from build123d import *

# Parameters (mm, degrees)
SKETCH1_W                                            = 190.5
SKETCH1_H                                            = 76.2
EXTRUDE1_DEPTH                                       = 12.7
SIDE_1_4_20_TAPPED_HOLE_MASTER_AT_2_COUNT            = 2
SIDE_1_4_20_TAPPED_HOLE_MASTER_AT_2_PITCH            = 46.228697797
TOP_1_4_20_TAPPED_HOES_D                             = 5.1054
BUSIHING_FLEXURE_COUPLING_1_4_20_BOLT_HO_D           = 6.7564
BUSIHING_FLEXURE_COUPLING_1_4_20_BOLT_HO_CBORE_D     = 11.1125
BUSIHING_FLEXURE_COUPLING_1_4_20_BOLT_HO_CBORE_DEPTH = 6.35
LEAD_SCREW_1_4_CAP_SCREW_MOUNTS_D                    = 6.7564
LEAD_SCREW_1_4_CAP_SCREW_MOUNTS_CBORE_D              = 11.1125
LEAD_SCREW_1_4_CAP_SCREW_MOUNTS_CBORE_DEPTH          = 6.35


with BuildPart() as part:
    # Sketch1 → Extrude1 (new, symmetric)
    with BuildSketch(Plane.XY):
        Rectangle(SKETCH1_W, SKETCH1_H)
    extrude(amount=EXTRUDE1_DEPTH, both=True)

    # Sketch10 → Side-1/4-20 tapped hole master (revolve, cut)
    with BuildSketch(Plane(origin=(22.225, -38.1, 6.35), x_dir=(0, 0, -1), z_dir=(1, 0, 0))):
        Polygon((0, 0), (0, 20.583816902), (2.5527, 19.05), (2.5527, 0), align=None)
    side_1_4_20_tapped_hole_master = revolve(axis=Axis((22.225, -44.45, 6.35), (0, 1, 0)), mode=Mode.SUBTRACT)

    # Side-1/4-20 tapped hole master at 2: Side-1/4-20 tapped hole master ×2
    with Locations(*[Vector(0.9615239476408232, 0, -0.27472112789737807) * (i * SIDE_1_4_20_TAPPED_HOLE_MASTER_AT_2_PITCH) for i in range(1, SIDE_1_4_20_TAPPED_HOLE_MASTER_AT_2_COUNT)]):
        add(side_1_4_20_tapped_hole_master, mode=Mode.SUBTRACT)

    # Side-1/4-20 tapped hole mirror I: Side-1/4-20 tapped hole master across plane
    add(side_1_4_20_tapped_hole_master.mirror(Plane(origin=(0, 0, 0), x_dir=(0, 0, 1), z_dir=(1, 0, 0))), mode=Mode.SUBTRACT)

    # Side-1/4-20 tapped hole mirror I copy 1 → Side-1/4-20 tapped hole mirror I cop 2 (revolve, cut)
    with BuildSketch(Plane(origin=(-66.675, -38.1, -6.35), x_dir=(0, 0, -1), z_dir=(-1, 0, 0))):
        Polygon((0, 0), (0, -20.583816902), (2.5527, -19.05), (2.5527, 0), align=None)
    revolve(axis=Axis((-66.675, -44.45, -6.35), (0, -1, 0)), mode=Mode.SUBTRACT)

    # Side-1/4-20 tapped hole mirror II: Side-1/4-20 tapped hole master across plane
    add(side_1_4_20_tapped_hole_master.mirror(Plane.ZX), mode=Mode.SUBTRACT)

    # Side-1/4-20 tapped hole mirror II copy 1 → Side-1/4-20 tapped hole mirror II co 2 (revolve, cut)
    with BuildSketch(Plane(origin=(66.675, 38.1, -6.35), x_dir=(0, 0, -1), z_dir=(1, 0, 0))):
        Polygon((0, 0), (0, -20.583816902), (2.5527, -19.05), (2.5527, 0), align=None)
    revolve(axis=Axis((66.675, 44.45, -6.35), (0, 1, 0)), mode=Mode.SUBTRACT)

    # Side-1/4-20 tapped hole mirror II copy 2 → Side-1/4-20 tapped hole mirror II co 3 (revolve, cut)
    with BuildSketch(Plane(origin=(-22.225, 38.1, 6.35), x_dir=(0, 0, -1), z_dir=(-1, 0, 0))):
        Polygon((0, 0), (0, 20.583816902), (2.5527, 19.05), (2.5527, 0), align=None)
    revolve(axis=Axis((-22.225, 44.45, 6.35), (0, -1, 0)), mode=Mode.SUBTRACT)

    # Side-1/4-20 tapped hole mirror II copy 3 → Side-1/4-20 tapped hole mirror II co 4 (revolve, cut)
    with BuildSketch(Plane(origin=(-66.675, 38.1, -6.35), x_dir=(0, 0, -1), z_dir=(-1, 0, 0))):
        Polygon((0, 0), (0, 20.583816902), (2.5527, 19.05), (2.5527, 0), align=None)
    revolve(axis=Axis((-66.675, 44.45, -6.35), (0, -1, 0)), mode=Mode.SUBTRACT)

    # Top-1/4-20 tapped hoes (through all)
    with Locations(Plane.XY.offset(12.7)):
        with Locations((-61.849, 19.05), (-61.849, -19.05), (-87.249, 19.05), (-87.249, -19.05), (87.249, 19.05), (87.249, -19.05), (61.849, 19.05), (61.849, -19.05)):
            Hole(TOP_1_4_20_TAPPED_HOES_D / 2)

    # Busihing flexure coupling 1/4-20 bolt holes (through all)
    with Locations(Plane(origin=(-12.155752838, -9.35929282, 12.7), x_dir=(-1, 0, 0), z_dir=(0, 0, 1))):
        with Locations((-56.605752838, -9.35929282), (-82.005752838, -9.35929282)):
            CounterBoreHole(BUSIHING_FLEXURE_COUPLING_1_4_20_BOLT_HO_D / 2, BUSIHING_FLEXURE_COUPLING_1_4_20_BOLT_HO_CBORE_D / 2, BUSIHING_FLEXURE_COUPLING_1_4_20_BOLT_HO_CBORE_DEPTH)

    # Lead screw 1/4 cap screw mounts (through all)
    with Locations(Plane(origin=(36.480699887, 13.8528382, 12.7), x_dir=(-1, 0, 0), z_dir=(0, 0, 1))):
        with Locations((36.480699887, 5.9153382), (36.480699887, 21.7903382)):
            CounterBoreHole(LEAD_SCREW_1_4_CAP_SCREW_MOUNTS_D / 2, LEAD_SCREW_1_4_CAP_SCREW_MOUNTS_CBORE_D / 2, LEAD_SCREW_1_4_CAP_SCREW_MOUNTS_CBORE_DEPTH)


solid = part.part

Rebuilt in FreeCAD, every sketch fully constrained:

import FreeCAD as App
import Part
import Sketcher
Q = App.Units.Quantity

doc = App.newDocument("Part")
body = doc.addObject("PartDesign::Body", "Body")

sketch1 = body.newObject("Sketcher::SketchObject", "Sketch")
sketch1.AttachmentSupport = (doc.getObject("XY_Plane"), [""])
sketch1.MapMode = "FlatFace"
sketch1.addGeometry([
    Part.LineSegment(App.Vector(-95.25, 38.1, 0), App.Vector(-95.25, -38.1, 0)),
    Part.LineSegment(App.Vector(-95.25, -38.1, 0), App.Vector(95.25, -38.1, 0)),
    Part.LineSegment(App.Vector(95.25, -38.1, 0), App.Vector(95.25, 38.1, 0)),
    Part.LineSegment(App.Vector(95.25, 38.1, 0), App.Vector(-95.25, 38.1, 0)),
], False)
sketch1.addConstraint([
    Sketcher.Constraint("Coincident", 0, 2, 1, 1),
    Sketcher.Constraint("Coincident", 1, 2, 2, 1),
    Sketcher.Constraint("Coincident", 2, 2, 3, 1),
    Sketcher.Constraint("Coincident", 3, 2, 0, 1),
    Sketcher.Constraint("Vertical", 0),
    Sketcher.Constraint("Horizontal", 1),
    Sketcher.Constraint("Vertical", 2),
    Sketcher.Constraint("Horizontal", 3),
    Sketcher.Constraint("Symmetric", 0, 2, 2, 2, -1, 1),
    Sketcher.Constraint("DistanceY", 0, 2, 0, 1, Q("3 in")),
    Sketcher.Constraint("DistanceX", 1, 1, 1, 2, Q("7.5 in")),
])
pad1 = body.newObject("PartDesign::Pad", "Pad")
pad1.Profile = sketch1
pad1.Length = Q("1 in")
pad1.Midplane = True

sketch2 = body.newObject("Sketcher::SketchObject", "Sketch001")
sketch2.AttachmentSupport = (doc.getObject("YZ_Plane"), [""])
sketch2.MapMode = "FlatFace"
sketch2.AttachmentOffset = App.Placement(App.Vector(0, 0, 0.875 * 25.4), App.Rotation())
sketch2.addGeometry([
    Part.LineSegment(App.Vector(-17.516183, 6.35, 0), App.Vector(-38.1, 6.35, 0)),
    Part.LineSegment(App.Vector(-38.1, 6.35, 0), App.Vector(-38.1, 3.7973, 0)),
    Part.LineSegment(App.Vector(-38.1, 3.7973, 0), App.Vector(-19.05, 3.7973, 0)),
    Part.LineSegment(App.Vector(-19.05, 3.7973, 0), App.Vector(-17.516183, 6.35, 0)),
], False)
sketch2.addGeometry(Part.LineSegment(App.Vector(-38.1, 6.35, 0), App.Vector(-17.516183, 6.35, 0)), True)
sketch2.addConstraint([
    Sketcher.Constraint("Coincident", 0, 2, 1, 1),
    Sketcher.Constraint("Coincident", 1, 2, 2, 1),
    Sketcher.Constraint("Coincident", 2, 2, 3, 1),
    Sketcher.Constraint("Coincident", 3, 2, 0, 1),
    Sketcher.Constraint("Horizontal", 0),
    Sketcher.Constraint("Vertical", 1),
    Sketcher.Constraint("Horizontal", 2),
    Sketcher.Constraint("Horizontal", 4),
    Sketcher.Constraint("Coincident", 4, 1, 0, 2),
    Sketcher.Constraint("Equal", 0, 4),
    Sketcher.Constraint("Angle", 3, Q("59 deg")),
    Sketcher.Constraint("DistanceX", 2, 1, 2, 2, Q("0.75 in")),
    Sketcher.Constraint("DistanceX", 0, 2, -1, 1, Q("1.5 in")),
    Sketcher.Constraint("DistanceY", -1, 1, 0, 2, Q("0.25 in")),
    Sketcher.Constraint("DistanceY", 1, 2, 1, 1, Q("0.1005 in")),
])
groove = body.newObject("PartDesign::Groove", "Groove")
groove.Profile = sketch2
groove.ReferenceAxis = (sketch2, ["Axis0"])
groove.Angle = 360
doc.recompute()

datumline = body.newObject("PartDesign::Line", "DatumLine")
datumline.Placement = App.Placement(App.Vector(0, 0, 0), App.Rotation(App.Vector(0, 0, 1), App.Vector(0.961523948, 0, -0.274721128)))
linearpattern = body.newObject("PartDesign::LinearPattern", "LinearPattern")
linearpattern.Originals = [groove]
linearpattern.Direction = (datumline, [""])
linearpattern.Mode = "offset"
linearpattern.Offset = 46.228698
linearpattern.Occurrences = 2
body.Tip = linearpattern
doc.recompute()

mirrored = body.newObject("PartDesign::Mirrored", "Mirrored")
mirrored.Originals = [groove]
mirrored.MirrorPlane = (doc.getObject("YZ_Plane"), [""])
body.Tip = mirrored

sketch3 = body.newObject("Sketcher::SketchObject", "Sketch002")
sketch3.AttachmentSupport = (doc.getObject("YZ_Plane"), [""])
sketch3.MapMode = "FlatFace"
sketch3.AttachmentOffset = App.Placement(App.Vector(0, 0, -2.625 * 25.4), App.Rotation())
sketch3.addGeometry([
    Part.LineSegment(App.Vector(-38.1, -6.35, 0), App.Vector(-17.516183, -6.35, 0)),
    Part.LineSegment(App.Vector(-17.516183, -6.35, 0), App.Vector(-19.05, -8.9027, 0)),
    Part.LineSegment(App.Vector(-19.05, -8.9027, 0), App.Vector(-38.1, -8.9027, 0)),
    Part.LineSegment(App.Vector(-38.1, -8.9027, 0), App.Vector(-38.1, -6.35, 0)),
], False)
sketch3.addGeometry(Part.LineSegment(App.Vector(-17.516183, -6.35, 0), App.Vector(-38.1, -6.35, 0)), True)
sketch3.addConstraint([
    Sketcher.Constraint("Coincident", 0, 2, 1, 1),
    Sketcher.Constraint("Coincident", 1, 2, 2, 1),
    Sketcher.Constraint("Coincident", 2, 2, 3, 1),
    Sketcher.Constraint("Coincident", 3, 2, 0, 1),
    Sketcher.Constraint("Horizontal", 0),
    Sketcher.Constraint("Horizontal", 2),
    Sketcher.Constraint("Vertical", 3),
    Sketcher.Constraint("Horizontal", 4),
    Sketcher.Constraint("Coincident", 4, 1, 0, 2),
    Sketcher.Constraint("Vertical", 2, 2, 4, 2),
    Sketcher.Constraint("Angle", 1, Q("-121 deg")),
    Sketcher.Constraint("DistanceX", 2, 2, 2, 1, Q("0.75 in")),
    Sketcher.Constraint("DistanceX", 2, 2, -1, 1, Q("1.5 in")),
    Sketcher.Constraint("DistanceY", 0, 2, -1, 1, Q("0.25 in")),
    Sketcher.Constraint("DistanceY", 3, 1, 3, 2, Q("0.1005 in")),
])
groove2 = body.newObject("PartDesign::Groove", "Groove001")
groove2.Profile = sketch3
groove2.ReferenceAxis = (sketch3, ["Axis0"])
groove2.Angle = 360
doc.recompute()

mirrored2 = body.newObject("PartDesign::Mirrored", "Mirrored001")
mirrored2.Originals = [groove]
mirrored2.MirrorPlane = (doc.getObject("XZ_Plane"), [""])
body.Tip = mirrored2

sketch4 = body.newObject("Sketcher::SketchObject", "Sketch003")
sketch4.AttachmentSupport = (doc.getObject("YZ_Plane"), [""])
sketch4.MapMode = "FlatFace"
sketch4.AttachmentOffset = App.Placement(App.Vector(0, 0, 2.625 * 25.4), App.Rotation())
sketch4.addGeometry([
    Part.LineSegment(App.Vector(38.1, -6.35, 0), App.Vector(17.516183, -6.35, 0)),
    Part.LineSegment(App.Vector(17.516183, -6.35, 0), App.Vector(19.05, -8.9027, 0)),
    Part.LineSegment(App.Vector(19.05, -8.9027, 0), App.Vector(38.1, -8.9027, 0)),
    Part.LineSegment(App.Vector(38.1, -8.9027, 0), App.Vector(38.1, -6.35, 0)),
], False)
sketch4.addGeometry(Part.LineSegment(App.Vector(17.516183, -6.35, 0), App.Vector(38.1, -6.35, 0)), True)
sketch4.addConstraint([
    Sketcher.Constraint("Coincident", 0, 2, 1, 1),
    Sketcher.Constraint("Coincident", 1, 2, 2, 1),
    Sketcher.Constraint("Coincident", 2, 2, 3, 1),
    Sketcher.Constraint("Coincident", 3, 2, 0, 1),
    Sketcher.Constraint("Horizontal", 0),
    Sketcher.Constraint("Horizontal", 2),
    Sketcher.Constraint("Vertical", 3),
    Sketcher.Constraint("Horizontal", 4),
    Sketcher.Constraint("Coincident", 4, 1, 0, 2),
    Sketcher.Constraint("Vertical", 2, 2, 4, 2),
    Sketcher.Constraint("Angle", 1, Q("-59 deg")),
    Sketcher.Constraint("DistanceX", 2, 1, 2, 2, Q("0.75 in")),
    Sketcher.Constraint("DistanceX", -1, 1, 2, 2, Q("1.5 in")),
    Sketcher.Constraint("DistanceY", 0, 2, -1, 1, Q("0.25 in")),
    Sketcher.Constraint("DistanceY", 3, 1, 3, 2, Q("0.1005 in")),
])
groove3 = body.newObject("PartDesign::Groove", "Groove002")
groove3.Profile = sketch4
groove3.ReferenceAxis = (sketch4, ["Axis0"])
groove3.Angle = 360

sketch5 = body.newObject("Sketcher::SketchObject", "Sketch004")
sketch5.AttachmentSupport = (doc.getObject("YZ_Plane"), [""])
sketch5.MapMode = "FlatFace"
sketch5.AttachmentOffset = App.Placement(App.Vector(0, 0, -0.875 * 25.4), App.Rotation())
sketch5.addGeometry([
    Part.LineSegment(App.Vector(17.516183, 6.35, 0), App.Vector(38.1, 6.35, 0)),
    Part.LineSegment(App.Vector(38.1, 6.35, 0), App.Vector(38.1, 3.7973, 0)),
    Part.LineSegment(App.Vector(38.1, 3.7973, 0), App.Vector(19.05, 3.7973, 0)),
    Part.LineSegment(App.Vector(19.05, 3.7973, 0), App.Vector(17.516183, 6.35, 0)),
], False)
sketch5.addGeometry(Part.LineSegment(App.Vector(38.1, 6.35, 0), App.Vector(17.516183, 6.35, 0)), True)
sketch5.addConstraint([
    Sketcher.Constraint("Coincident", 0, 2, 1, 1),
    Sketcher.Constraint("Coincident", 1, 2, 2, 1),
    Sketcher.Constraint("Coincident", 2, 2, 3, 1),
    Sketcher.Constraint("Coincident", 3, 2, 0, 1),
    Sketcher.Constraint("Horizontal", 0),
    Sketcher.Constraint("Vertical", 1),
    Sketcher.Constraint("Horizontal", 2),
    Sketcher.Constraint("Horizontal", 4),
    Sketcher.Constraint("Coincident", 4, 1, 0, 2),
    Sketcher.Constraint("Equal", 0, 4),
    Sketcher.Constraint("Angle", 3, Q("121 deg")),
    Sketcher.Constraint("DistanceX", 2, 2, 2, 1, Q("0.75 in")),
    Sketcher.Constraint("DistanceX", -1, 1, 0, 2, Q("1.5 in")),
    Sketcher.Constraint("DistanceY", -1, 1, 0, 2, Q("0.25 in")),
    Sketcher.Constraint("DistanceY", 1, 2, 1, 1, Q("0.1005 in")),
])
groove4 = body.newObject("PartDesign::Groove", "Groove003")
groove4.Profile = sketch5
groove4.ReferenceAxis = (sketch5, ["Axis0"])
groove4.Angle = 360

sketch6 = body.newObject("Sketcher::SketchObject", "Sketch005")
sketch6.AttachmentSupport = (doc.getObject("YZ_Plane"), [""])
sketch6.MapMode = "FlatFace"
sketch6.AttachmentOffset = App.Placement(App.Vector(0, 0, -2.625 * 25.4), App.Rotation())
sketch6.addGeometry([
    Part.LineSegment(App.Vector(17.516183, -6.35, 0), App.Vector(38.1, -6.35, 0)),
    Part.LineSegment(App.Vector(38.1, -6.35, 0), App.Vector(38.1, -8.9027, 0)),
    Part.LineSegment(App.Vector(38.1, -8.9027, 0), App.Vector(19.05, -8.9027, 0)),
    Part.LineSegment(App.Vector(19.05, -8.9027, 0), App.Vector(17.516183, -6.35, 0)),
], False)
sketch6.addGeometry(Part.LineSegment(App.Vector(38.1, -6.35, 0), App.Vector(17.516183, -6.35, 0)), True)
sketch6.addConstraint([
    Sketcher.Constraint("Coincident", 0, 2, 1, 1),
    Sketcher.Constraint("Coincident", 1, 2, 2, 1),
    Sketcher.Constraint("Coincident", 2, 2, 3, 1),
    Sketcher.Constraint("Coincident", 3, 2, 0, 1),
    Sketcher.Constraint("Horizontal", 0),
    Sketcher.Constraint("Vertical", 1),
    Sketcher.Constraint("Horizontal", 2),
    Sketcher.Constraint("Horizontal", 4),
    Sketcher.Constraint("Coincident", 4, 1, 0, 2),
    Sketcher.Constraint("Equal", 0, 4),
    Sketcher.Constraint("Angle", 3, Q("121 deg")),
    Sketcher.Constraint("DistanceX", 2, 2, 2, 1, Q("0.75 in")),
    Sketcher.Constraint("DistanceX", -1, 1, 0, 2, Q("1.5 in")),
    Sketcher.Constraint("DistanceY", 0, 2, -1, 1, Q("0.25 in")),
    Sketcher.Constraint("DistanceY", 1, 2, 1, 1, Q("0.1005 in")),
])
groove5 = body.newObject("PartDesign::Groove", "Groove004")
groove5.Profile = sketch6
groove5.ReferenceAxis = (sketch6, ["Axis0"])
groove5.Angle = 360

sketch7 = body.newObject("Sketcher::SketchObject", "Sketch006")
sketch7.AttachmentSupport = (doc.getObject("XY_Plane"), [""])
sketch7.MapMode = "FlatFace"
sketch7.AttachmentOffset = App.Placement(App.Vector(0, 0, 0.5 * 25.4), App.Rotation())
sketch7.addGeometry([
    Part.Circle(App.Vector(-61.849, 19.05, 0), App.Vector(0, 0, 1), 2.5527),
    Part.Circle(App.Vector(-61.849, -19.05, 0), App.Vector(0, 0, 1), 2.5527),
    Part.Circle(App.Vector(-87.249, 19.05, 0), App.Vector(0, 0, 1), 2.5527),
    Part.Circle(App.Vector(-87.249, -19.05, 0), App.Vector(0, 0, 1), 2.5527),
    Part.Circle(App.Vector(87.249, 19.05, 0), App.Vector(0, 0, 1), 2.5527),
    Part.Circle(App.Vector(87.249, -19.05, 0), App.Vector(0, 0, 1), 2.5527),
    Part.Circle(App.Vector(61.849, 19.05, 0), App.Vector(0, 0, 1), 2.5527),
    Part.Circle(App.Vector(61.849, -19.05, 0), App.Vector(0, 0, 1), 2.5527),
], False)
sketch7.addConstraint([
    Sketcher.Constraint("Equal", 0, 1),
    Sketcher.Constraint("Equal", 1, 2),
    Sketcher.Constraint("Equal", 2, 3),
    Sketcher.Constraint("Equal", 3, 4),
    Sketcher.Constraint("Equal", 4, 5),
    Sketcher.Constraint("Equal", 5, 6),
    Sketcher.Constraint("Equal", 6, 7),
    Sketcher.Constraint("Symmetric", 3, 3, 4, 3, -1, 1),
    Sketcher.Constraint("Symmetric", 2, 3, 5, 3, -1, 1),
    Sketcher.Constraint("Symmetric", 1, 3, 6, 3, -1, 1),
    Sketcher.Constraint("Symmetric", 0, 3, 7, 3, -1, 1),
    Sketcher.Constraint("Symmetric", 2, 3, 4, 3, -2),
    Sketcher.Constraint("Symmetric", 0, 3, 6, 3, -2),
    Sketcher.Constraint("Horizontal", 0, 3, 2, 3),
    Sketcher.Constraint("Diameter", 0, Q("0.201 in")),
    Sketcher.Constraint("DistanceX", 2, 3, 0, 3, Q("1 in")),
    Sketcher.Constraint("DistanceY", 1, 3, 0, 3, Q("1.5 in")),
    Sketcher.Constraint("DistanceX", 0, 3, 4, 3, Q("5.87 in")),
])
doc.recompute()
hole = body.newObject("PartDesign::Hole", "Hole")
hole.Profile = sketch7
hole.ThreadType = "None"
hole.Diameter = Q("0.201 in")
hole.DepthType = "ThroughAll"

sketch8 = body.newObject("Sketcher::SketchObject", "Sketch007")
sketch8.AttachmentSupport = (doc.getObject("XY_Plane"), [""])
sketch8.MapMode = "FlatFace"
sketch8.AttachmentOffset = App.Placement(App.Vector(0, 0, 0.5 * 25.4), App.Rotation())
sketch8.addGeometry([
    Part.Circle(App.Vector(44.45, 0, 0), App.Vector(0, 0, 1), 3.3782),
    Part.Circle(App.Vector(69.85, 0, 0), App.Vector(0, 0, 1), 3.3782),
], False)
sketch8.addConstraint([
    Sketcher.Constraint("Equal", 0, 1),
    Sketcher.Constraint("PointOnObject", 0, 3, -1),
    Sketcher.Constraint("PointOnObject", 1, 3, -1),
    Sketcher.Constraint("Diameter", 0, Q("0.266 in")),
    Sketcher.Constraint("DistanceX", 0, 3, 1, 3, Q("1 in")),
    Sketcher.Constraint("DistanceX", -1, 1, 0, 3, Q("1.75 in")),
])
doc.recompute()
hole2 = body.newObject("PartDesign::Hole", "Hole001")
hole2.Profile = sketch8
hole2.ThreadType = "None"
hole2.Diameter = Q("0.266 in")
hole2.DepthType = "ThroughAll"
hole2.HoleCutType = "Counterbore"
hole2.HoleCutDiameter = Q("0.4375 in")
hole2.HoleCutDepth = Q("0.25 in")

sketch9 = body.newObject("Sketcher::SketchObject", "Sketch008")
sketch9.AttachmentSupport = (doc.getObject("XY_Plane"), [""])
sketch9.MapMode = "FlatFace"
sketch9.AttachmentOffset = App.Placement(App.Vector(0, 0, 0.5 * 25.4), App.Rotation())
sketch9.addGeometry([
    Part.Circle(App.Vector(0, 7.9375, 0), App.Vector(0, 0, 1), 3.3782),
    Part.Circle(App.Vector(0, -7.9375, 0), App.Vector(0, 0, 1), 3.3782),
], False)
sketch9.addConstraint([
    Sketcher.Constraint("Equal", 0, 1),
    Sketcher.Constraint("Symmetric", 0, 3, 1, 3, -1, 1),
    Sketcher.Constraint("PointOnObject", 0, 3, -2),
    Sketcher.Constraint("Diameter", 0, Q("0.266 in")),
    Sketcher.Constraint("DistanceY", -1, 1, 0, 3, Q("0.3125 in")),
])
doc.recompute()
hole3 = body.newObject("PartDesign::Hole", "Hole002")
hole3.Profile = sketch9
hole3.ThreadType = "None"
hole3.Diameter = Q("0.266 in")
hole3.DepthType = "ThroughAll"
hole3.HoleCutType = "Counterbore"
hole3.HoleCutDiameter = Q("0.4375 in")
hole3.HoleCutDepth = Q("0.25 in")

doc.recompute()
